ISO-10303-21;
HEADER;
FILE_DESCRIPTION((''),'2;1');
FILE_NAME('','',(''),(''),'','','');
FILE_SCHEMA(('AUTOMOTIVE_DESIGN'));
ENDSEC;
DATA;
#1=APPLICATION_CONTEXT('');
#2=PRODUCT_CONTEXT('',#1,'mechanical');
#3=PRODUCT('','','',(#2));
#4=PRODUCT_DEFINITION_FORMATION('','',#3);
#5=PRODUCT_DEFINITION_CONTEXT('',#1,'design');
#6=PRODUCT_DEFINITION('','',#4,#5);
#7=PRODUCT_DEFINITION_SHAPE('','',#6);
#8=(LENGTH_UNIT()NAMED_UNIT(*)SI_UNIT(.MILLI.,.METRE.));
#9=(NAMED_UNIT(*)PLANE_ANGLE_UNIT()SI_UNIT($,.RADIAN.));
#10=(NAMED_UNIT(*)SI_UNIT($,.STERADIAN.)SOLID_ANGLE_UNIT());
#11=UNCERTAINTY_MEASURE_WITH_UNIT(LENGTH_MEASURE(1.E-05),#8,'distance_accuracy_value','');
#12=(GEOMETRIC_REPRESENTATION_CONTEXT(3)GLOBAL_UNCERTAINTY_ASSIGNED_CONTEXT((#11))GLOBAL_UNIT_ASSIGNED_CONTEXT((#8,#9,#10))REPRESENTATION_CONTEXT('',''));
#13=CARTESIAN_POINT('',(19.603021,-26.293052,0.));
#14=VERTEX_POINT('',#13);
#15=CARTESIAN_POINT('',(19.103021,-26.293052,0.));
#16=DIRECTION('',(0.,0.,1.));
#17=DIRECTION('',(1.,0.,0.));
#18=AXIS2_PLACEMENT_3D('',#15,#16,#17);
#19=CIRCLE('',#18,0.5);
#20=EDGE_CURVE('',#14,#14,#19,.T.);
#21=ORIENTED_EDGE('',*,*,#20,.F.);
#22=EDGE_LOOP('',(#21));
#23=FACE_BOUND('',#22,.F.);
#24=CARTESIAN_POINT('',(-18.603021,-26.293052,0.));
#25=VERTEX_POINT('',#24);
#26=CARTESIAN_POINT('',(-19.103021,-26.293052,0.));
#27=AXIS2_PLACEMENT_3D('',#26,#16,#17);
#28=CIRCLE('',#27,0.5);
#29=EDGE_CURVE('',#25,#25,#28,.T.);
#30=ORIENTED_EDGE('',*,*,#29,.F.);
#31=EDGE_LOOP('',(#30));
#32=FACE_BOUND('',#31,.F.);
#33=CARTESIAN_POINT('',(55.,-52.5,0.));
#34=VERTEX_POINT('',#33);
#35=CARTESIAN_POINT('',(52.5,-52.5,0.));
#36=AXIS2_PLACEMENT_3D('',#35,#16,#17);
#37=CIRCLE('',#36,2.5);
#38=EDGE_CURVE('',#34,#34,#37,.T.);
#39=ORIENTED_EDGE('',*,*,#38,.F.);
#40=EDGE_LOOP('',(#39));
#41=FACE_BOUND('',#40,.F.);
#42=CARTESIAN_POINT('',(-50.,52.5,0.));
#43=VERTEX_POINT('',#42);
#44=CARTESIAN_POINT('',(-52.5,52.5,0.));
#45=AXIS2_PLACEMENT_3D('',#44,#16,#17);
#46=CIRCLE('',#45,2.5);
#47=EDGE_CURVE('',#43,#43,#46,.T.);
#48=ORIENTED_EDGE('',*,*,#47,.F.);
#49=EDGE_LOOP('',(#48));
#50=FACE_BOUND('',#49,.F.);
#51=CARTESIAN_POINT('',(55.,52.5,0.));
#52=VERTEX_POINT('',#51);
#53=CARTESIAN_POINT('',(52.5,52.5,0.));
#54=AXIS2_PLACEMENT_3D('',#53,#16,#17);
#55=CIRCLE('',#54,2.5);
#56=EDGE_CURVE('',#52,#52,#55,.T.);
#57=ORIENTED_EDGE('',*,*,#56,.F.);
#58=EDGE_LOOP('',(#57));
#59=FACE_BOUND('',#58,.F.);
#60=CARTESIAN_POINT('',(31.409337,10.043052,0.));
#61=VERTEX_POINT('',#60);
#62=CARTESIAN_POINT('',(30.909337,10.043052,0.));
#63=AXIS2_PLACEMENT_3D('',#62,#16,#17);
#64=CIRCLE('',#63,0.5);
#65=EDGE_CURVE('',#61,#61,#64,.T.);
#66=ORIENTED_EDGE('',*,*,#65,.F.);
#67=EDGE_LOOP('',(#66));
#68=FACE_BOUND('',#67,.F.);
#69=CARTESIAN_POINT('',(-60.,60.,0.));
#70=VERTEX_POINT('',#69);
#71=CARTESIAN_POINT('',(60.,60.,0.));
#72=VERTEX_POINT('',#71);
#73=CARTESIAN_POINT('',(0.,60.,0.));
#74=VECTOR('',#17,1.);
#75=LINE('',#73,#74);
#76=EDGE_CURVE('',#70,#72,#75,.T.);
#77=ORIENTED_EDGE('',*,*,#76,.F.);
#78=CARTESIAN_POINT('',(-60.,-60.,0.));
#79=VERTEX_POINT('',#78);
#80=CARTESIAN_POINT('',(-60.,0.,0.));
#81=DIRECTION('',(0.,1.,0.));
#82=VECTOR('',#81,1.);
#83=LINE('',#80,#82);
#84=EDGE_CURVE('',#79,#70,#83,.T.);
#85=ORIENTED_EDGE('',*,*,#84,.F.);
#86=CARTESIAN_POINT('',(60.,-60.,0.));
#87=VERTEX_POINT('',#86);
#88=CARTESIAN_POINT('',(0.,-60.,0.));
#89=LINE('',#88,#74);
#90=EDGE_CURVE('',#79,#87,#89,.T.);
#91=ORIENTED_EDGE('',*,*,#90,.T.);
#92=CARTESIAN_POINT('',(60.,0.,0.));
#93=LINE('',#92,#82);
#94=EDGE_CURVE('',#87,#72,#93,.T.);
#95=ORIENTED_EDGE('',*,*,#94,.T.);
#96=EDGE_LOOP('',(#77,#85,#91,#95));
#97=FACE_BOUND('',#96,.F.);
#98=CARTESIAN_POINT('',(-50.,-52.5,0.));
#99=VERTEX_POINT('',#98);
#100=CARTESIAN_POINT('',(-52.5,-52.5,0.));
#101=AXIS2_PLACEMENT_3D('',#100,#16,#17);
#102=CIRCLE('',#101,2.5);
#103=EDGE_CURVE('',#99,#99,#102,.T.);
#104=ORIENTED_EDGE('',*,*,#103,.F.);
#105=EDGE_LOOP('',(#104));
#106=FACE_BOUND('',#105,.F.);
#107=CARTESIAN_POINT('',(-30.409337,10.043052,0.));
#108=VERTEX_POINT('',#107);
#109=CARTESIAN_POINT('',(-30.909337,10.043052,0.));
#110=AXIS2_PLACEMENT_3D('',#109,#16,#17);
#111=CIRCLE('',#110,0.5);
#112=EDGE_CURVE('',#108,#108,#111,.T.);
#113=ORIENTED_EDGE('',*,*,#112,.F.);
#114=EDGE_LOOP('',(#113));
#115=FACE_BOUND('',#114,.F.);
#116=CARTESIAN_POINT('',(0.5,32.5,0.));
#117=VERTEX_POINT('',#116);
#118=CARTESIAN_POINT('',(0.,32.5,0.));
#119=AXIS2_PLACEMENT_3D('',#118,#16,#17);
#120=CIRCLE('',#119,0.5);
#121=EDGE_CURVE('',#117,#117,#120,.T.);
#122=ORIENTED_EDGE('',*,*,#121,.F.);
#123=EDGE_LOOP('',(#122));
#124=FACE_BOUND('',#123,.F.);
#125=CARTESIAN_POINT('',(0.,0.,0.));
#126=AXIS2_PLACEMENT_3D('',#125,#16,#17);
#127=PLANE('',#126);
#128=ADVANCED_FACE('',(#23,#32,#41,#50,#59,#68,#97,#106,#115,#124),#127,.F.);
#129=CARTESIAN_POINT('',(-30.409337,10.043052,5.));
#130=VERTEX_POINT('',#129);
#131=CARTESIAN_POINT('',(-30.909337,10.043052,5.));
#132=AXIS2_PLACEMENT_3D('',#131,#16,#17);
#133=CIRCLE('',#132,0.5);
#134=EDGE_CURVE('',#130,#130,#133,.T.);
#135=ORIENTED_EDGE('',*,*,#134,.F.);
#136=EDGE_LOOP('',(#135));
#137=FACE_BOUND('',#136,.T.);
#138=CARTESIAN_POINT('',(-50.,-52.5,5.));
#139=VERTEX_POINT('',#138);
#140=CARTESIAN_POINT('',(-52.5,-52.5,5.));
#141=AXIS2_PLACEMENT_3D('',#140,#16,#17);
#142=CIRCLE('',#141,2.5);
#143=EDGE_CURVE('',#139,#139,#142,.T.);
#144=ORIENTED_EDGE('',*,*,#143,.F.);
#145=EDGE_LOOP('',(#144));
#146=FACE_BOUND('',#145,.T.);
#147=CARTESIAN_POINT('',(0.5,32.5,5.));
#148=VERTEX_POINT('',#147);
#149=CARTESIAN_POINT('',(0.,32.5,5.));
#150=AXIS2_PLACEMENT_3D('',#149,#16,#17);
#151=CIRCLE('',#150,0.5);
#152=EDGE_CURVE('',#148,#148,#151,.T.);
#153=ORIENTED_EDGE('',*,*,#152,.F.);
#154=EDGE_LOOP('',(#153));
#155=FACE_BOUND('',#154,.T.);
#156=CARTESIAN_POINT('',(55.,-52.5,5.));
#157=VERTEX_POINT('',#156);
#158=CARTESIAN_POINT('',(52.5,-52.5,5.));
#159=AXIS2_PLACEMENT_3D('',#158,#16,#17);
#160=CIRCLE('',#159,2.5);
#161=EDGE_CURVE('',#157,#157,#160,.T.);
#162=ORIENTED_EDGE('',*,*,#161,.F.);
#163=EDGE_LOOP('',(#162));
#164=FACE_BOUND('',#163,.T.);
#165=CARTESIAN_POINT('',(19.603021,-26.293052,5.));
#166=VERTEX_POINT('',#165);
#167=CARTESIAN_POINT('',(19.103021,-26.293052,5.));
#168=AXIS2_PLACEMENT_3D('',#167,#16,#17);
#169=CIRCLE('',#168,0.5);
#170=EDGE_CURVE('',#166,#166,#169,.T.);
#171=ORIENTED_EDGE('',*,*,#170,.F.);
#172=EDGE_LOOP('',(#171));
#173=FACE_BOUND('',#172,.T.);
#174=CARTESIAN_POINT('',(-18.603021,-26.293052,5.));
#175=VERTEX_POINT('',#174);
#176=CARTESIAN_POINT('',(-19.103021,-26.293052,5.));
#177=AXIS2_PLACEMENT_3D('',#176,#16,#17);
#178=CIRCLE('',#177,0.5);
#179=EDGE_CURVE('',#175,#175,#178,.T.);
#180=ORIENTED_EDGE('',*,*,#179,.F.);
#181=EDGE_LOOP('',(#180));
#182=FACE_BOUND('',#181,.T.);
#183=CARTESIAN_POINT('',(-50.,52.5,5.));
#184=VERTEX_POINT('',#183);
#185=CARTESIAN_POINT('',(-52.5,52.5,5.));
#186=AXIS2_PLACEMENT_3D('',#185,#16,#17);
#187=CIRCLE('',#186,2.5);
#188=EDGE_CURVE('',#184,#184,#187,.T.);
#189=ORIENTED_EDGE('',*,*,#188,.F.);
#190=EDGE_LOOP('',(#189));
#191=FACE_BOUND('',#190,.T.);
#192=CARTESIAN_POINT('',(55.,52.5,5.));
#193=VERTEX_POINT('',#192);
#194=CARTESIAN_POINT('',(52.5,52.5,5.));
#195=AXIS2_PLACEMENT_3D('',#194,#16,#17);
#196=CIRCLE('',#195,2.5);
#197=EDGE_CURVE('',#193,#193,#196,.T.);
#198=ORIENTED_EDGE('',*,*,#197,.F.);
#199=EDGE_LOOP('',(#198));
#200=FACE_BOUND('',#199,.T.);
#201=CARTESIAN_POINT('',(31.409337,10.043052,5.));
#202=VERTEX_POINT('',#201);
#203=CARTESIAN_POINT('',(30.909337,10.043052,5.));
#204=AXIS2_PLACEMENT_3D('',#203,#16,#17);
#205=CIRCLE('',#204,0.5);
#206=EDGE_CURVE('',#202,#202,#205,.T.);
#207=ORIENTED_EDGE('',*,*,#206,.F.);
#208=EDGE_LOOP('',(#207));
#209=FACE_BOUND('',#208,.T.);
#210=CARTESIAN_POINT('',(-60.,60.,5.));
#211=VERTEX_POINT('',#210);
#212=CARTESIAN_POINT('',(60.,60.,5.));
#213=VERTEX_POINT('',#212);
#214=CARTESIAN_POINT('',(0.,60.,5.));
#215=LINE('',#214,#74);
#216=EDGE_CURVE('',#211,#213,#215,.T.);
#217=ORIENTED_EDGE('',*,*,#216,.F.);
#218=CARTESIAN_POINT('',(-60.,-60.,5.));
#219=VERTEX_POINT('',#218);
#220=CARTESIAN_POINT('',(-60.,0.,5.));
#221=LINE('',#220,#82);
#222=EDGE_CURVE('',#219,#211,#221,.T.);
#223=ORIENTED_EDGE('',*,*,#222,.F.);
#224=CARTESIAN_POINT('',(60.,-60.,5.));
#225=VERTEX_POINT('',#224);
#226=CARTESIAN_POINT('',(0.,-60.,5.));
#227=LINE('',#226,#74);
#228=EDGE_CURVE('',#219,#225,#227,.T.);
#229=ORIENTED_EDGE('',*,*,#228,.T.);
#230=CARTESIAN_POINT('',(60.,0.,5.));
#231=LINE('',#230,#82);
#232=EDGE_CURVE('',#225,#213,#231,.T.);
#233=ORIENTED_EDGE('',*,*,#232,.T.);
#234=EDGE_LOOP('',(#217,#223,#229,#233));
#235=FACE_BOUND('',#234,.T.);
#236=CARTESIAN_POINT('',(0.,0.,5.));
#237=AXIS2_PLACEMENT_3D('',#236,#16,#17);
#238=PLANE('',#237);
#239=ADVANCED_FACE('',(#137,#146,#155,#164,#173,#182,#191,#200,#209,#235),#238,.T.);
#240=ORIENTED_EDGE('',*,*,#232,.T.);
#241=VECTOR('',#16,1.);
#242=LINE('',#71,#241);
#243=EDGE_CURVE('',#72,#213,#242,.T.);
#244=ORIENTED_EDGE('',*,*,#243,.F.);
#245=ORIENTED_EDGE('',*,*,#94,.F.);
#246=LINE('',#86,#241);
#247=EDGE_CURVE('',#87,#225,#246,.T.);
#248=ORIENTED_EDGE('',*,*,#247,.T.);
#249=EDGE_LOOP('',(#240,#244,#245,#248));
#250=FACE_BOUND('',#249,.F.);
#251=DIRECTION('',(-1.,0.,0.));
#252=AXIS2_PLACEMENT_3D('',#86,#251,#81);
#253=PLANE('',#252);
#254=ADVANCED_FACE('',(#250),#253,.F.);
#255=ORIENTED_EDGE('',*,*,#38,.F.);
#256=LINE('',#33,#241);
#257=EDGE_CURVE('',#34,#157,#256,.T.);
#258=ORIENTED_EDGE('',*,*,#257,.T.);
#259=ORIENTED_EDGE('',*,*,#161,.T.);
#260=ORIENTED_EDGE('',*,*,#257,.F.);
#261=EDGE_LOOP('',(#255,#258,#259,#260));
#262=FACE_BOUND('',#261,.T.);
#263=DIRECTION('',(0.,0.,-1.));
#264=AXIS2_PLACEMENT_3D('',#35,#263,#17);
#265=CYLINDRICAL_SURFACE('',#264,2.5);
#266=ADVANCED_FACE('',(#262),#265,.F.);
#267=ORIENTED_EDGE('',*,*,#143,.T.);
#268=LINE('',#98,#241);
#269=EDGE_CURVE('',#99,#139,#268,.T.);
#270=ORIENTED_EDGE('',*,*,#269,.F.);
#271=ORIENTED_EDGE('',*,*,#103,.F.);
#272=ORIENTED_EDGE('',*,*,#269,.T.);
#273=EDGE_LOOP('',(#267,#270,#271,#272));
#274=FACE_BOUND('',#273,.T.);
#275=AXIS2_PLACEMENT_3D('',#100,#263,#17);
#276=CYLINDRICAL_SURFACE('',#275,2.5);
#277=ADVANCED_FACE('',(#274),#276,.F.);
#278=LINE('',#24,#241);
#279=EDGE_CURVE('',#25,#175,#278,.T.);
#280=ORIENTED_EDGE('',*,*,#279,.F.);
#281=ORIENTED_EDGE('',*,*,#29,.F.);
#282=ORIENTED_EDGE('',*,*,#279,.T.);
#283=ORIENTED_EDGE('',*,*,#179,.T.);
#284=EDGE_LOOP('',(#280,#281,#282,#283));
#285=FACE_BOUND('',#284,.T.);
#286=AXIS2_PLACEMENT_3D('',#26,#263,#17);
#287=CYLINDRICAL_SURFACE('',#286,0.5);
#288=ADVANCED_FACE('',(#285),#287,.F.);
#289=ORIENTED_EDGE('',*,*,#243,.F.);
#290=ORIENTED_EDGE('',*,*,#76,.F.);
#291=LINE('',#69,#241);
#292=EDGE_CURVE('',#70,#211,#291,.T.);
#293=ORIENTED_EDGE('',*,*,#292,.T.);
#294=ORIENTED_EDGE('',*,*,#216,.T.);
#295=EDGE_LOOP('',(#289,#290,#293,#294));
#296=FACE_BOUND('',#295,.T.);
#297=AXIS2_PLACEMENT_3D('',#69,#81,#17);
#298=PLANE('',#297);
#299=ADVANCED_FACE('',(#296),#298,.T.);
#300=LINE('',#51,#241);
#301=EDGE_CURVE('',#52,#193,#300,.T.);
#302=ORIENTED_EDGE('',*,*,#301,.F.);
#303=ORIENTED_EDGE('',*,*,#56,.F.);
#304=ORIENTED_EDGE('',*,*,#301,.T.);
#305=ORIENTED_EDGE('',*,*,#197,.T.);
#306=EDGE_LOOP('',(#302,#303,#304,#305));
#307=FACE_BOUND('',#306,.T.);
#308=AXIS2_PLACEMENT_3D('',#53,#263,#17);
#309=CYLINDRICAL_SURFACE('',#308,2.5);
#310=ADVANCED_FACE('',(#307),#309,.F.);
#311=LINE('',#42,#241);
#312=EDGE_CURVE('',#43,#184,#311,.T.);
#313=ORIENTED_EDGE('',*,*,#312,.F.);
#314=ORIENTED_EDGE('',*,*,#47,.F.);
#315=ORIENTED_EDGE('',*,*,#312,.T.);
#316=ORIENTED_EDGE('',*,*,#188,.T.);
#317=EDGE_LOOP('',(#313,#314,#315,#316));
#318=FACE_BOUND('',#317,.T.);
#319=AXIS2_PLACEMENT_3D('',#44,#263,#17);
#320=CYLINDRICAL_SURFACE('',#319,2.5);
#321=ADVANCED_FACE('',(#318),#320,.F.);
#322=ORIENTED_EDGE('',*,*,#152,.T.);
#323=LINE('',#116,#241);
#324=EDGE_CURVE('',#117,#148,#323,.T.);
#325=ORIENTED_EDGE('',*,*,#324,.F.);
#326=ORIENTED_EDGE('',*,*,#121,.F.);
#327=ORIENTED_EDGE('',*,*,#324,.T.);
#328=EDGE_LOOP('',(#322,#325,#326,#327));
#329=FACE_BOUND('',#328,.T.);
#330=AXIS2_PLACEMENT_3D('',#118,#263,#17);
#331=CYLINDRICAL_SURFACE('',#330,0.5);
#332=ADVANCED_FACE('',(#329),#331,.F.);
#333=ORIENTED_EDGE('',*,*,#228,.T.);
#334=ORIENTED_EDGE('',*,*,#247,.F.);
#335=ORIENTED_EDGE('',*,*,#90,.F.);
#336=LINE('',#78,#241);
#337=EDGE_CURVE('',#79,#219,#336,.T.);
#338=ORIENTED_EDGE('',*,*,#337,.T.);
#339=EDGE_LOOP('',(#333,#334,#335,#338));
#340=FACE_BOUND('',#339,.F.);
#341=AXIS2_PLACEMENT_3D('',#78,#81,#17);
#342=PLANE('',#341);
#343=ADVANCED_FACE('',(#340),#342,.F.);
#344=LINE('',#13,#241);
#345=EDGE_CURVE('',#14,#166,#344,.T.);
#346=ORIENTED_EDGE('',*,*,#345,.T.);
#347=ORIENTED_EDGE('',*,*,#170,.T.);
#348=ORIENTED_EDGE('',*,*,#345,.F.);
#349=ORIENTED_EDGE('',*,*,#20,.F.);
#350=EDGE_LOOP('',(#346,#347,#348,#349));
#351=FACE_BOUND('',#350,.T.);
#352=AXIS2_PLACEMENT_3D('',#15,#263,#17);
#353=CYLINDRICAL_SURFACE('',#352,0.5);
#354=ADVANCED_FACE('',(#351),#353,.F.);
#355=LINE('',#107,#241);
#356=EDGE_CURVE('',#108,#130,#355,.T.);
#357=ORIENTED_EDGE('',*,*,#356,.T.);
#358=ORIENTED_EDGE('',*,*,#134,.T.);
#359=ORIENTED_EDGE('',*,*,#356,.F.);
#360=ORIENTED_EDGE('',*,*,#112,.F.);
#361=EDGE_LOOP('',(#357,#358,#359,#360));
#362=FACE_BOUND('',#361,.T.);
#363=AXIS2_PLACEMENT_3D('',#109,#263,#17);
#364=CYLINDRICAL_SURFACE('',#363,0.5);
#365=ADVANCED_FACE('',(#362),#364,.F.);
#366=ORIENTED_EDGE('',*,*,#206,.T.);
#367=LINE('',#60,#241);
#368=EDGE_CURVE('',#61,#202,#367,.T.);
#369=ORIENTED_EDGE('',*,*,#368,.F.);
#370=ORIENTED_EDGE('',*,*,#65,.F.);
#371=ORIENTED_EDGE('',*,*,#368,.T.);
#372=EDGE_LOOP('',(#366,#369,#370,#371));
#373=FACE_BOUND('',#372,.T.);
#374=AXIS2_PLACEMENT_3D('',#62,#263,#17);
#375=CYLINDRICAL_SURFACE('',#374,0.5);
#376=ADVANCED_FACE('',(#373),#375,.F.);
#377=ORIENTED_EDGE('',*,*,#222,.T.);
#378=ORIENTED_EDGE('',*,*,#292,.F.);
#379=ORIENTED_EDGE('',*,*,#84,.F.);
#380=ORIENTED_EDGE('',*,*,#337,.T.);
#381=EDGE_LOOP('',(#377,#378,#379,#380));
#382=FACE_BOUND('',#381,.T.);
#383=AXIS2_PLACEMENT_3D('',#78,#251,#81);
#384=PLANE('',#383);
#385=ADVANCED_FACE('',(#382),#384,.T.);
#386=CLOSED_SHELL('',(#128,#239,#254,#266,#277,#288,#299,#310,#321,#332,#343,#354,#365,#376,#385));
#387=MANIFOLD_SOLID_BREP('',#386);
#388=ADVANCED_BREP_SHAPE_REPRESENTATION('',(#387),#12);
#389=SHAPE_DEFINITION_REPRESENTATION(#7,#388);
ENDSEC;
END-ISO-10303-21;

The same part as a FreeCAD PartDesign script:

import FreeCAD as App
import Part
import Sketcher

V = App.Vector

doc = App.newDocument("Part")
body = doc.addObject("PartDesign::Body", "Body")

# Sketch on XY plane
sketch1 = doc.addObject("Sketcher::SketchObject", "Sketch")
body.addObject(sketch1)
sketch1.AttachmentSupport = (doc.XY_Plane, [""])
sketch1.MapMode = "FlatFace"
sketch1.addGeometry([
    Part.LineSegment(V(-60, 60, 0), V(-60, -60, 0)),  # 0
    Part.LineSegment(V(-60, -60, 0), V(60, -60, 0)),  # 1
    Part.LineSegment(V(60, -60, 0), V(60, 60, 0)),  # 2
    Part.LineSegment(V(60, 60, 0), V(-60, 60, 0)),  # 3
    Part.Circle(V(-52.5, -52.5, 0), V(0, 0, 1), 2.5),  # 4
    Part.Circle(V(-19.1, -26.3, 0), V(0, 0, 1), 0.5),  # 5
    Part.Circle(V(52.5, -52.5, 0), V(0, 0, 1), 2.5),  # 6
    Part.Circle(V(19.1, -26.3, 0), V(0, 0, 1), 0.5),  # 7
    Part.Circle(V(-30.9, 10, 0), V(0, 0, 1), 0.5),  # 8
    Part.Circle(V(-52.5, 52.5, 0), V(0, 0, 1), 2.5),  # 9
    Part.Circle(V(30.9, 10, 0), V(0, 0, 1), 0.5),  # 10
    Part.Circle(V(0, 32.5, 0), V(0, 0, 1), 0.5),  # 11
    Part.Circle(V(52.5, 52.5, 0), V(0, 0, 1), 2.5),  # 12
], False)
sketch1.addConstraint([
    Sketcher.Constraint("Coincident", 0, 2, 1, 1),
    Sketcher.Constraint("Coincident", 1, 2, 2, 1),
    Sketcher.Constraint("Coincident", 2, 2, 3, 1),
    Sketcher.Constraint("Coincident", 3, 2, 0, 1),
    Sketcher.Constraint("Vertical", 0),
    Sketcher.Constraint("Horizontal", 1),
    Sketcher.Constraint("Vertical", 2),
    Sketcher.Constraint("Horizontal", 3),
    Sketcher.Constraint("Equal", 4, 6),
    Sketcher.Constraint("Equal", 5, 7),
    Sketcher.Constraint("Equal", 7, 8),
    Sketcher.Constraint("Equal", 6, 9),
    Sketcher.Constraint("Equal", 8, 10),
    Sketcher.Constraint("Equal", 10, 11),
    Sketcher.Constraint("Equal", 9, 12),
    Sketcher.Constraint("Symmetric", 6, 3, 9, 3, -1, 1),
    Sketcher.Constraint("Symmetric", 4, 3, 12, 3, -1, 1),
    Sketcher.Constraint("Symmetric", 0, 2, 2, 2, -1, 1),
    Sketcher.Constraint("Symmetric", 4, 3, 6, 3, -2),
    Sketcher.Constraint("Symmetric", 5, 3, 7, 3, -2),
    Sketcher.Constraint("Symmetric", 8, 3, 10, 3, -2),
    Sketcher.Constraint("PointOnObject", 11, 3, -2),
    Sketcher.Constraint("Equal", 3, 0),
    Sketcher.Constraint("Diameter", 4, 5.0),
    Sketcher.Constraint("Diameter", 5, 1.0),
    Sketcher.Constraint("DistanceX", 1, 1, 1, 2, 120.0),
    Sketcher.Constraint("DistanceX", 4, 3, 6, 3, 105.0),
    Sketcher.Constraint("DistanceY", 4, 3, 9, 3, 105.0),
    Sketcher.Constraint("DistanceY", 11, 3, 9, 3, 20.0),
    Sketcher.Constraint("DistanceX", 5, 3, -1, 1, 19.103021),
    Sketcher.Constraint("DistanceY", 5, 3, -1, 1, 26.293052),
    Sketcher.Constraint("DistanceY", 8, 3, 11, 3, 22.456948),
    Sketcher.Constraint("DistanceX", 8, 3, -1, 1, 30.909337),
])
pad1 = doc.addObject("PartDesign::Pad", "Pad")
body.addObject(pad1)
pad1.Profile = sketch1
pad1.Length = 5

doc.recompute()
